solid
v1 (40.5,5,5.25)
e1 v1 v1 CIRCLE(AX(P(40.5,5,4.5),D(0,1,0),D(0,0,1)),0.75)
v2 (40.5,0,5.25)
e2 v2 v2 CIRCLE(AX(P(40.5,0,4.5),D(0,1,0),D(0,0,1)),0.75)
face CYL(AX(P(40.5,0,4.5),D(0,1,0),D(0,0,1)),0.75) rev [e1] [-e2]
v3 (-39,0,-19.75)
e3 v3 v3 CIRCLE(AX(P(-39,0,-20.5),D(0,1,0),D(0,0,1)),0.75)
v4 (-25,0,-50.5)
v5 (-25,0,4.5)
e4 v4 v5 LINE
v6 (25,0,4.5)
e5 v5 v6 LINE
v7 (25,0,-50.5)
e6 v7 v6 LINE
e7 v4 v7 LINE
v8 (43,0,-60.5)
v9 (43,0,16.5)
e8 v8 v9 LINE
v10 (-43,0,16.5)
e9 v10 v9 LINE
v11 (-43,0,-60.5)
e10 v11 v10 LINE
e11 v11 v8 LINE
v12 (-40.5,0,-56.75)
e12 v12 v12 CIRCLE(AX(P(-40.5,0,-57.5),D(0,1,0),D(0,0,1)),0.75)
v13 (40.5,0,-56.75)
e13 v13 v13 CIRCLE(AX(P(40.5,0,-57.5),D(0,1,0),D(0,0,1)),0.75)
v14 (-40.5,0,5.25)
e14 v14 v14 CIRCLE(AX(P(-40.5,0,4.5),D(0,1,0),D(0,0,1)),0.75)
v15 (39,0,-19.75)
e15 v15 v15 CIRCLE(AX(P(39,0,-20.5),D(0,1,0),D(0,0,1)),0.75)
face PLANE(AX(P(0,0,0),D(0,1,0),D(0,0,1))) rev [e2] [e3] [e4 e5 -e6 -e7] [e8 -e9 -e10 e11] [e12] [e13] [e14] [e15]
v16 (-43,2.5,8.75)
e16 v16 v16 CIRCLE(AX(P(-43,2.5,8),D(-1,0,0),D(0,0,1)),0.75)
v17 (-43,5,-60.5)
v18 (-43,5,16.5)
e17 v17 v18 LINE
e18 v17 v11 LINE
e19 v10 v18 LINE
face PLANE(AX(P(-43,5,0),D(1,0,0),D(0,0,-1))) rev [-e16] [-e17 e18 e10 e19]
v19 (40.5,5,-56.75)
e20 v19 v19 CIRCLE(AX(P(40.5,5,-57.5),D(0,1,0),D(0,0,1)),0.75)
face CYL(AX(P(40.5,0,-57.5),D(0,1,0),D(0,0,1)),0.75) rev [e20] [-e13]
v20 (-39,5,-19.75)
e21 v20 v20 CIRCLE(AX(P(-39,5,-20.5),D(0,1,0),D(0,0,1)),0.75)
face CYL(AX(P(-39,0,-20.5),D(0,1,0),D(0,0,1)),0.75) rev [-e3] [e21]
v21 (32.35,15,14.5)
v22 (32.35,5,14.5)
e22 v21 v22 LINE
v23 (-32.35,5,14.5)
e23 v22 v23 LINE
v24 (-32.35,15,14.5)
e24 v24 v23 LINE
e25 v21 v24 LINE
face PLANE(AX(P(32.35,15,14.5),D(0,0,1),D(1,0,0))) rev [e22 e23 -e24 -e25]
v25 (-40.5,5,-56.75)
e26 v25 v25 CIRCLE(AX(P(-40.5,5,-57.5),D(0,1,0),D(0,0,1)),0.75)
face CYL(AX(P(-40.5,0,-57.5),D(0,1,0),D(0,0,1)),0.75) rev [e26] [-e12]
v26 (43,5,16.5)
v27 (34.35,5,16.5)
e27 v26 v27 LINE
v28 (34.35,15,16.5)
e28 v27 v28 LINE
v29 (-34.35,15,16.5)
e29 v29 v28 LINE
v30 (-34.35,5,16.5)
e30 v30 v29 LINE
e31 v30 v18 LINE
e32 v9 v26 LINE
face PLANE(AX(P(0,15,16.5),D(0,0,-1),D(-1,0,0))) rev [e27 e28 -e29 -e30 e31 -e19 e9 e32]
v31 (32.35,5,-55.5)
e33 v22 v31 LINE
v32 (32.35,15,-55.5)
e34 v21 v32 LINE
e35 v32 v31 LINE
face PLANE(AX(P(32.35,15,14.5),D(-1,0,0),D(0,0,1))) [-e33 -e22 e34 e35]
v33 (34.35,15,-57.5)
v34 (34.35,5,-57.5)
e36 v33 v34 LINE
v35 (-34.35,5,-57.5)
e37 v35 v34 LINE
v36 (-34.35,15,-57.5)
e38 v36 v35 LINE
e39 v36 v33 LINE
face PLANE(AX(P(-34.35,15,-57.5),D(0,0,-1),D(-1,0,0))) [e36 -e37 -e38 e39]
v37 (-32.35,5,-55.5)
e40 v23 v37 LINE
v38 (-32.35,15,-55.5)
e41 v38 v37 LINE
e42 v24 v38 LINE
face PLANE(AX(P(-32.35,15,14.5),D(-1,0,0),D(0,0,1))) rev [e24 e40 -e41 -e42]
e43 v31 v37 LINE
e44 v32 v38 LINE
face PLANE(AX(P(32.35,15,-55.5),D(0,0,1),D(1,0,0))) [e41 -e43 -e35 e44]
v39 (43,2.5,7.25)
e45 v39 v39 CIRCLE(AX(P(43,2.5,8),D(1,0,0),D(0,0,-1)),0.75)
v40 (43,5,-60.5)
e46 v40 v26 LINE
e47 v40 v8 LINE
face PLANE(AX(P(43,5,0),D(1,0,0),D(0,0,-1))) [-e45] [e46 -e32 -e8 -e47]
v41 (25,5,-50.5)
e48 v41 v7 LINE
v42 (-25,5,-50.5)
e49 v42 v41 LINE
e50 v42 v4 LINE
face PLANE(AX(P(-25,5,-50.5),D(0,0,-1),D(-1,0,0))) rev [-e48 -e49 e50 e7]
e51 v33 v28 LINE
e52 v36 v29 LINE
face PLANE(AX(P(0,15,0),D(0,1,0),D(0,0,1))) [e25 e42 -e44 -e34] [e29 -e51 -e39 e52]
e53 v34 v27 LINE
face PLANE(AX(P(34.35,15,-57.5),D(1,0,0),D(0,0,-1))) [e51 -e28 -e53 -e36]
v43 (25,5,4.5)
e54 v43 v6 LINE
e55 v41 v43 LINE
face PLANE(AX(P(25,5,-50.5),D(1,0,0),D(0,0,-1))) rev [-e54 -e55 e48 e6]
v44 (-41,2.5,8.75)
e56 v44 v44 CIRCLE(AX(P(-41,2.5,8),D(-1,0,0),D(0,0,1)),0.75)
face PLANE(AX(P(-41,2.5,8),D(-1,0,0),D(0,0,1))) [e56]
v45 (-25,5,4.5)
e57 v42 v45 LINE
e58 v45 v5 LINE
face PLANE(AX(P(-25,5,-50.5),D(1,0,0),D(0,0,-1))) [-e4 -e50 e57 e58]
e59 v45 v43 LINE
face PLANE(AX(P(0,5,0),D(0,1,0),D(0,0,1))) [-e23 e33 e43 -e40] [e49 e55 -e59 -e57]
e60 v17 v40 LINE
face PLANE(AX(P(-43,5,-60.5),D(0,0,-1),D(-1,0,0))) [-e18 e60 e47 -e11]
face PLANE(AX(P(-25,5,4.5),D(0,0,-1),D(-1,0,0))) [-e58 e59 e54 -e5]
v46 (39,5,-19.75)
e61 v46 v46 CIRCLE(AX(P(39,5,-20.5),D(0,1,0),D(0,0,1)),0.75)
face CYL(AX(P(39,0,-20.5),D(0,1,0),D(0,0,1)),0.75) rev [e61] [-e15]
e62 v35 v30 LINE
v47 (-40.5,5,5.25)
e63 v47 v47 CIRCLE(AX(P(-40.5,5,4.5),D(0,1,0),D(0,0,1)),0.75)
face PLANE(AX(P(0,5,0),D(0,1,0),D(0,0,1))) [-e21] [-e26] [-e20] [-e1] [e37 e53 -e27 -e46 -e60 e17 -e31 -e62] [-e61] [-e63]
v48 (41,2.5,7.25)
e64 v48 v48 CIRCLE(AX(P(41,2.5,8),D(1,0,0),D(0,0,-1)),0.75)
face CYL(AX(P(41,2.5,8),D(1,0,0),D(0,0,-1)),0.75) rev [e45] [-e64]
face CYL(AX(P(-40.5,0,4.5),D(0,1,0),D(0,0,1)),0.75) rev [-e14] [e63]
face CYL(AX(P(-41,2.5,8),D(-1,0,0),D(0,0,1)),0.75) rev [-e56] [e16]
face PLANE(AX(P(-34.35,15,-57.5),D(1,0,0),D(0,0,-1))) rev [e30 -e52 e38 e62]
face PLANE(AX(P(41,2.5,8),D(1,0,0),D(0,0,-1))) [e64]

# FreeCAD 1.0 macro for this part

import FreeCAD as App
import Part
import Sketcher
from FreeCAD import Vector


def add_polygon(sketch, points):
    """Adds a closed chain of lines whose ends are joined by coincident constraints."""
    first, n = sketch.GeometryCount, len(points)
    for a, b in zip(points, points[1:] + points[:1]):
        sketch.addGeometry(Part.LineSegment(App.Vector(*a, 0), App.Vector(*b, 0)), False)
    for i in range(n):
        sketch.addConstraint(Sketcher.Constraint("Coincident", first + i, 2, first + (i + 1) % n, 1))

doc = App.newDocument("Part")
body = doc.addObject("PartDesign::Body", "Body")

# Sketch on XZ plane
sketch1 = body.newObject("Sketcher::SketchObject", "Sketch")
sketch1.AttachmentSupport = (doc.getObject("XZ_Plane"), [""])
sketch1.MapMode = "FlatFace"
add_polygon(sketch1, [(-43, -60), (-43, 114), (43, 114), (43, -60)])  # lines 0-3
add_polygon(sketch1, [(38, 108), (-38, 108), (-38, 66), (38, 66)])  # lines 4-7
add_polygon(sketch1, [(25, 50), (-25, 50), (-25, 26), (25, 26)])  # lines 8-11
add_polygon(sketch1, [(25, 4), (-25, 4), (-25, -50), (25, -50)])  # lines 12-15
sketch1.addConstraint([
    Sketcher.Constraint("Vertical", 0),
    Sketcher.Constraint("Horizontal", 1),
    Sketcher.Constraint("Vertical", 2),
    Sketcher.Constraint("Horizontal", 3),
    Sketcher.Constraint("Horizontal", 4),
    Sketcher.Constraint("Vertical", 5),
    Sketcher.Constraint("Horizontal", 6),
    Sketcher.Constraint("Vertical", 7),
    Sketcher.Constraint("Horizontal", 8),
    Sketcher.Constraint("Vertical", 9),
    Sketcher.Constraint("Horizontal", 10),
    Sketcher.Constraint("Vertical", 11),
    Sketcher.Constraint("Horizontal", 12),
    Sketcher.Constraint("Vertical", 13),
    Sketcher.Constraint("Horizontal", 14),
    Sketcher.Constraint("Vertical", 15),
    Sketcher.Constraint("Symmetric", 11, 2, 13, 2, -1, 1),
    Sketcher.Constraint("Vertical", 9, 2, 12, 2),
    Sketcher.Constraint("Vertical", 11, 2, 14, 2),
    Sketcher.Constraint("DistanceX", 1, 1, 1, 2, 86.0),
    Sketcher.Constraint("DistanceX", 4, 2, 4, 1, 76.0),
    Sketcher.Constraint("DistanceX", 8, 2, 8, 1, 50.0),
    Sketcher.Constraint("DistanceY", 0, 1, 0, 2, 174.0),
    Sketcher.Constraint("DistanceY", 5, 2, 5, 1, 43.0),
    Sketcher.Constraint("DistanceY", 9, 2, 9, 1, 25.0),
    Sketcher.Constraint("DistanceY", 13, 2, 13, 1, 55.0),
    Sketcher.Constraint("DistanceX", 0, 2, -1, 1, 43.0),
    Sketcher.Constraint("DistanceX", 4, 2, -1, 1, 38.0),
    Sketcher.Constraint("DistanceY", 4, 2, 0, 2, 5.0),
    Sketcher.Constraint("DistanceY", 8, 2, 5, 2, 15.0),
    Sketcher.Constraint("DistanceY", 12, 2, 9, 2, 21.0),
])
pad1 = body.newObject("PartDesign::Pad", "Pad")
pad1.Profile = sketch1
pad1.Length = 5
pad1.Reversed = True

# Sketch on XZ plane
sketch2 = body.newObject("Sketcher::SketchObject", "Sketch001")
sketch2.AttachmentSupport = (doc.getObject("XZ_Plane"), [""])
sketch2.MapMode = "FlatFace"
sketch2.AttachmentOffset = App.Placement(Vector(0, 0, -5), App.Rotation())
add_polygon(sketch2, [(-34, -58), (-34, 58), (34, 58), (34, -58)])  # lines 0-3
add_polygon(sketch2, [(32, 56), (-32, 56), (-32, 18), (32, 18)])  # lines 4-7
add_polygon(sketch2, [(32, 14), (-32, 14), (-32, -56), (32, -56)])  # lines 8-11
sketch2.addConstraint([
    Sketcher.Constraint("Vertical", 0),
    Sketcher.Constraint("Horizontal", 1),
    Sketcher.Constraint("Vertical", 2),
    Sketcher.Constraint("Horizontal", 3),
    Sketcher.Constraint("Horizontal", 4),
    Sketcher.Constraint("Vertical", 5),
    Sketcher.Constraint("Horizontal", 6),
    Sketcher.Constraint("Vertical", 7),
    Sketcher.Constraint("Horizontal", 8),
    Sketcher.Constraint("Vertical", 9),
    Sketcher.Constraint("Horizontal", 10),
    Sketcher.Constraint("Vertical", 11),
    Sketcher.Constraint("Symmetric", 0, 2, 2, 2, -1, 1),
    Sketcher.Constraint("Symmetric", 7, 2, 9, 2, -1, 1),
    Sketcher.Constraint("Vertical", 5, 2, 8, 2),
    Sketcher.Constraint("Vertical", 7, 2, 10, 2),
    Sketcher.Constraint("DistanceY", 0, 1, 0, 2, 115.0),
    Sketcher.Constraint("DistanceY", 5, 2, 5, 1, 37.0),
    Sketcher.Constraint("DistanceY", 9, 2, 9, 1, 70.0),
    Sketcher.Constraint("DistanceX", 1, 1, 1, 2, 68.7),
    Sketcher.Constraint("DistanceX", 4, 2, 4, 1, 64.7),
    Sketcher.Constraint("DistanceY", 4, 2, 0, 2, 2.0),
])
pad2 = body.newObject("PartDesign::Pad", "Pad001")
pad2.Profile = sketch2
pad2.Length = 10
pad2.Reversed = True

# Sketch on XZ plane
sketch3 = body.newObject("Sketcher::SketchObject", "Sketch002")
sketch3.AttachmentSupport = (doc.getObject("XZ_Plane"), [""])
sketch3.MapMode = "FlatFace"
sketch3.AttachmentOffset = App.Placement(Vector(0, 0, -5), App.Rotation())
sketch3.addGeometry([
    Part.Circle(Vector(-39, -20.5, 0), Vector(0, 0, 1), 0.8),  # 0
    Part.Circle(Vector(39, -20.5, 0), Vector(0, 0, 1), 0.8),  # 1
    Part.Circle(Vector(-39, 32.5, 0), Vector(0, 0, 1), 0.8),  # 2
    Part.Circle(Vector(39, 32.5, 0), Vector(0, 0, 1), 0.8),  # 3
    Part.Circle(Vector(-40.1, 60.4, 0), Vector(0, 0, 1), 0.8),  # 4
    Part.Circle(Vector(40.1, 60.4, 0), Vector(0, 0, 1), 0.8),  # 5
    Part.Circle(Vector(-40.1, 110.5, 0), Vector(0, 0, 1), 0.8),  # 6
    Part.Circle(Vector(40.1, 110.5, 0), Vector(0, 0, 1), 0.8),  # 7
    Part.Circle(Vector(-40.5, -57.5, 0), Vector(0, 0, 1), 0.8),  # 8
    Part.Circle(Vector(-40.5, 38, 0), Vector(0, 0, 1), 0.8),  # 9
    Part.Circle(Vector(-40.5, 85.5, 0), Vector(0, 0, 1), 0.8),  # 10
    Part.Circle(Vector(40.5, -57.5, 0), Vector(0, 0, 1), 0.8),  # 11
    Part.Circle(Vector(40.5, 38, 0), Vector(0, 0, 1), 0.8),  # 12
    Part.Circle(Vector(40.5, 85.5, 0), Vector(0, 0, 1), 0.8),  # 13
    Part.Circle(Vector(-40.5, 4.5, 0), Vector(0, 0, 1), 0.8),  # 14
    Part.Circle(Vector(40.5, 4.5, 0), Vector(0, 0, 1), 0.8),  # 15
], False)
sketch3.addConstraint([
    Sketcher.Constraint("Equal", 0, 1),
    Sketcher.Constraint("Equal", 1, 2),
    Sketcher.Constraint("Equal", 2, 3),
    Sketcher.Constraint("Equal", 3, 4),
    Sketcher.Constraint("Equal", 4, 5),
    Sketcher.Constraint("Equal", 5, 6),
    Sketcher.Constraint("Equal", 6, 7),
    Sketcher.Constraint("Equal", 7, 8),
    Sketcher.Constraint("Equal", 8, 9),
    Sketcher.Constraint("Equal", 9, 10),
    Sketcher.Constraint("Equal", 10, 11),
    Sketcher.Constraint("Equal", 11, 12),
    Sketcher.Constraint("Equal", 12, 13),
    Sketcher.Constraint("Equal", 13, 14),
    Sketcher.Constraint("Equal", 14, 15),
    Sketcher.Constraint("Symmetric", 0, 3, 1, 3, -2),
    Sketcher.Constraint("Symmetric", 2, 3, 3, 3, -2),
    Sketcher.Constraint("Symmetric", 4, 3, 5, 3, -2),
    Sketcher.Constraint("Symmetric", 6, 3, 7, 3, -2),
    Sketcher.Constraint("Symmetric", 8, 3, 11, 3, -2),
    Sketcher.Constraint("Symmetric", 9, 3, 12, 3, -2),
    Sketcher.Constraint("Symmetric", 10, 3, 13, 3, -2),
    Sketcher.Constraint("Symmetric", 14, 3, 15, 3, -2),
    Sketcher.Constraint("Vertical", 0, 3, 2, 3),
    Sketcher.Constraint("Vertical", 4, 3, 6, 3),
    Sketcher.Constraint("Vertical", 8, 3, 9, 3),
    Sketcher.Constraint("Vertical", 9, 3, 10, 3),
    Sketcher.Constraint("Vertical", 10, 3, 14, 3),
    Sketcher.Constraint("Diameter", 0, 1.5),
    Sketcher.Constraint("DistanceX", 0, 3, -1, 1, 39.0),
    Sketcher.Constraint("DistanceY", -1, 1, 9, 3, 38.0),
    Sketcher.Constraint("DistanceY", 0, 3, 2, 3, 53.0),
    Sketcher.Constraint("DistanceY", 8, 3, 0, 3, 37.0),
    Sketcher.Constraint("DistanceY", 2, 3, 10, 3, 53.0),
    Sketcher.Constraint("DistanceX", 8, 3, 11, 3, 81.0),
    Sketcher.Constraint("DistanceY", 0, 3, 14, 3, 25.0),
    Sketcher.Constraint("DistanceY", 0, 3, -1, 1, 20.5),
    Sketcher.Constraint("DistanceY", -1, 1, 4, 3, 60.35),
    Sketcher.Constraint("DistanceY", -1, 1, 6, 3, 110.5303),
    Sketcher.Constraint("DistanceX", 4, 3, -1, 1, 40.142778),
])
pocket1 = body.newObject("PartDesign::Pocket", "Pocket")
pocket1.Profile = sketch3
pocket1.Type = "ThroughAll"
pocket1.Reversed = True

# Sketch on XZ plane
sketch4 = body.newObject("Sketcher::SketchObject", "Sketch003")
sketch4.AttachmentSupport = (doc.getObject("XZ_Plane"), [""])
sketch4.MapMode = "FlatFace"
sketch4.AttachmentOffset = App.Placement(Vector(0, 0, -5), App.Rotation())
add_polygon(sketch4, [(-32, 58), (-32, 66), (-17, 66), (-17, 58)])  # lines 0-3
add_polygon(sketch4, [(-13, 58), (-13, 66), (13, 66), (13, 58)])  # lines 4-7
add_polygon(sketch4, [(-43, 74), (-43, 84), (-38, 84), (-38, 74)])  # lines 8-11
add_polygon(sketch4, [(-43, 95), (-43, 108), (-38, 108), (-38, 95)])  # lines 12-15
add_polygon(sketch4, [(-35, 108), (-35, 114), (-29, 114), (-29, 108)])  # lines 16-19
add_polygon(sketch4, [(-6, 108), (-6, 114), (0, 114), (0, 108)])  # lines 20-23
add_polygon(sketch4, [(14, 108), (14, 114), (21, 114), (21, 108)])  # lines 24-27
add_polygon(sketch4, [(27, 108), (27, 114), (34, 114), (34, 108)])  # lines 28-31
add_polygon(sketch4, [(38, 82), (38, 102), (43, 102), (43, 82)])  # lines 32-35
sketch4.addConstraint([
    Sketcher.Constraint("Vertical", 0),
    Sketcher.Constraint("Horizontal", 1),
    Sketcher.Constraint("Vertical", 2),
    Sketcher.Constraint("Horizontal", 3),
    Sketcher.Constraint("Vertical", 4),
    Sketcher.Constraint("Horizontal", 5),
    Sketcher.Constraint("Vertical", 6),
    Sketcher.Constraint("Horizontal", 7),
    Sketcher.Constraint("Vertical", 8),
    Sketcher.Constraint("Horizontal", 9),
    Sketcher.Constraint("Vertical", 10),
    Sketcher.Constraint("Horizontal", 11),
    Sketcher.Constraint("Vertical", 12),
    Sketcher.Constraint("Horizontal", 13),
    Sketcher.Constraint("Vertical", 14),
    Sketcher.Constraint("Horizontal", 15),
    Sketcher.Constraint("Vertical", 16),
    Sketcher.Constraint("Horizontal", 17),
    Sketcher.Constraint("Vertical", 18),
    Sketcher.Constraint("Horizontal", 19),
    Sketcher.Constraint("Vertical", 20),
    Sketcher.Constraint("Horizontal", 21),
    Sketcher.Constraint("Vertical", 22),
    Sketcher.Constraint("Horizontal", 23),
    Sketcher.Constraint("Vertical", 24),
    Sketcher.Constraint("Horizontal", 25),
    Sketcher.Constraint("Vertical", 26),
    Sketcher.Constraint("Horizontal", 27),
    Sketcher.Constraint("Vertical", 28),
    Sketcher.Constraint("Horizontal", 29),
    Sketcher.Constraint("Vertical", 30),
    Sketcher.Constraint("Horizontal", 31),
    Sketcher.Constraint("Vertical", 32),
    Sketcher.Constraint("Horizontal", 33),
    Sketcher.Constraint("Vertical", 34),
    Sketcher.Constraint("Horizontal", 35),
    Sketcher.Constraint("PointOnObject", 21, 2, -2),
    Sketcher.Constraint("Horizontal", 1, 2, 4, 2),
    Sketcher.Constraint("Horizontal", 3, 2, 6, 2),
    Sketcher.Constraint("Horizontal", 17, 2, 20, 2),
    Sketcher.Constraint("Horizontal", 19, 2, 22, 2),
    Sketcher.Constraint("Horizontal", 21, 2, 24, 2),
    Sketcher.Constraint("Horizontal", 23, 2, 26, 2),
    Sketcher.Constraint("Horizontal", 25, 2, 28, 2),
    Sketcher.Constraint("Horizontal", 27, 2, 30, 2),
    Sketcher.Constraint("Vertical", 11, 2, 12, 2),
    Sketcher.Constraint("Vertical", 10, 2, 13, 2),
    Sketcher.Constraint("Equal", 19, 21),
    Sketcher.Constraint("Equal", 27, 29),
    Sketcher.Constraint("Equal", 15, 33),
    Sketcher.Constraint("Equal", 35, 16),
    Sketcher.Constraint("DistanceX", 1, 1, 1, 2, 15.0),
    Sketcher.Constraint("DistanceX", 5, 1, 5, 2, 26.0),
    Sketcher.Constraint("DistanceX", 9, 1, 9, 2, 5.0),
    Sketcher.Constraint("DistanceX", 17, 1, 17, 2, 6.0),
    Sketcher.Constraint("DistanceX", 25, 1, 25, 2, 7.0),
    Sketcher.Constraint("DistanceY", 0, 1, 0, 2, 8.0),
    Sketcher.Constraint("DistanceY", 8, 1, 8, 2, 10.0),
    Sketcher.Constraint("DistanceY", 32, 1, 32, 2, 21.0),
    Sketcher.Constraint("DistanceX", 0, 2, -1, 1, 32.0),
    Sketcher.Constraint("DistanceX", 4, 2, -1, 1, 13.0),
    Sketcher.Constraint("DistanceX", 8, 2, -1, 1, 43.0),
    Sketcher.Constraint("DistanceX", 16, 2, -1, 1, 35.0),
    Sketcher.Constraint("DistanceX", -1, 1, 24, 2, 14.0),
    Sketcher.Constraint("DistanceX", -1, 1, 28, 2, 27.0),
    Sketcher.Constraint("DistanceX", -1, 1, 32, 2, 38.0),
    Sketcher.Constraint("DistanceY", 0, 2, 8, 2, 18.0),
    Sketcher.Constraint("DistanceY", 8, 2, 12, 2, 24.0),
    Sketcher.Constraint("DistanceY", 13, 2, 16, 2, 6.0),
    Sketcher.Constraint("DistanceY", 32, 2, 30, 2, 6.0),
    Sketcher.Constraint("DistanceY", -1, 1, 0, 2, 65.5),
    Sketcher.Constraint("DistanceY", 12, 1, 12, 2, 12.1197),
])
pocket2 = body.newObject("PartDesign::Pocket", "Pocket001")
pocket2.Profile = sketch4
pocket2.Length = 2
pocket2.Reversed = True

# Sketch on YZ plane
sketch5 = body.newObject("Sketcher::SketchObject", "Sketch004")
sketch5.AttachmentSupport = (doc.getObject("YZ_Plane"), [""])
sketch5.MapMode = "FlatFace"
sketch5.AttachmentOffset = App.Placement(Vector(0, 0, -43), App.Rotation())
sketch5.addGeometry([
    Part.Circle(Vector(2.5, 8, 0), Vector(0, 0, 1), 0.8),
    Part.Circle(Vector(2.5, 23, 0), Vector(0, 0, 1), 0.8),
    Part.Circle(Vector(2.5, 52, 0), Vector(0, 0, 1), 0.8),
    Part.Circle(Vector(2.5, 63, 0), Vector(0, 0, 1), 0.8),
], False)
sketch5.addConstraint([
    Sketcher.Constraint("Equal", 0, 1),
    Sketcher.Constraint("Equal", 1, 2),
    Sketcher.Constraint("Equal", 2, 3),
    Sketcher.Constraint("Vertical", 0, 3, 1, 3),
    Sketcher.Constraint("Vertical", 1, 3, 2, 3),
    Sketcher.Constraint("Vertical", 2, 3, 3, 3),
    Sketcher.Constraint("Diameter", 0, 1.5),
    Sketcher.Constraint("DistanceY", -1, 1, 0, 3, 8.0),
    Sketcher.Constraint("DistanceY", -1, 1, 1, 3, 23.0),
    Sketcher.Constraint("DistanceY", -1, 1, 2, 3, 52.0),
    Sketcher.Constraint("DistanceY", -1, 1, 3, 3, 63.0),
    Sketcher.Constraint("DistanceX", -1, 1, 0, 3, 2.5),
])
pocket3 = body.newObject("PartDesign::Pocket", "Pocket002")
pocket3.Profile = sketch5
pocket3.Length = 2
pocket3.Reversed = True

# Sketch on YZ plane
sketch6 = body.newObject("Sketcher::SketchObject", "Sketch005")
sketch6.AttachmentSupport = (doc.getObject("YZ_Plane"), [""])
sketch6.MapMode = "FlatFace"
sketch6.AttachmentOffset = App.Placement(Vector(0, 0, 41), App.Rotation())
sketch6.addGeometry([
    Part.Circle(Vector(2.5, 8, 0), Vector(0, 0, 1), 0.8),
    Part.Circle(Vector(2.5, 23, 0), Vector(0, 0, 1), 0.8),
    Part.Circle(Vector(2.5, 52, 0), Vector(0, 0, 1), 0.8),
    Part.Circle(Vector(2.5, 63, 0), Vector(0, 0, 1), 0.8),
], False)
sketch6.addConstraint([
    Sketcher.Constraint("Equal", 0, 1),
    Sketcher.Constraint("Equal", 1, 2),
    Sketcher.Constraint("Equal", 2, 3),
    Sketcher.Constraint("Vertical", 0, 3, 1, 3),
    Sketcher.Constraint("Vertical", 1, 3, 2, 3),
    Sketcher.Constraint("Vertical", 2, 3, 3, 3),
    Sketcher.Constraint("Diameter", 0, 1.5),
    Sketcher.Constraint("DistanceY", -1, 1, 0, 3, 8.0),
    Sketcher.Constraint("DistanceY", -1, 1, 1, 3, 23.0),
    Sketcher.Constraint("DistanceY", -1, 1, 2, 3, 52.0),
    Sketcher.Constraint("DistanceY", -1, 1, 3, 3, 63.0),
    Sketcher.Constraint("DistanceX", -1, 1, 0, 3, 2.5),
])
pocket4 = body.newObject("PartDesign::Pocket", "Pocket003")
pocket4.Profile = sketch6
pocket4.Length = 2
pocket4.Reversed = True

# Sketch on XZ plane
sketch7 = body.newObject("Sketcher::SketchObject", "Sketch006")
sketch7.AttachmentSupport = (doc.getObject("XZ_Plane"), [""])
sketch7.MapMode = "FlatFace"
add_polygon(sketch7, [(-43, 16.5), (-43, 113.5), (43, 113.5), (43, 16.5)])  # lines 0-3
sketch7.addGeometry(Part.Circle(Vector(-40.1, 110.5, 0), Vector(0, 0, 1), 0.8), False)  # 4
sketch7.addGeometry(Part.Circle(Vector(-40.5, 85.5, 0), Vector(0, 0, 1), 0.8), False)  # 5
sketch7.addGeometry(Part.Circle(Vector(40.1, 110.5, 0), Vector(0, 0, 1), 0.8), False)  # 6
add_polygon(sketch7, [(38, 108.5), (-38, 108.5), (-38, 65.5), (38, 65.5)])  # lines 7-10
sketch7.addGeometry(Part.Circle(Vector(40.5, 85.5, 0), Vector(0, 0, 1), 0.8), False)  # 11
sketch7.addGeometry(Part.Circle(Vector(-40.1, 60.4, 0), Vector(0, 0, 1), 0.8), False)  # 12
sketch7.addGeometry(Part.Circle(Vector(-40.5, 38, 0), Vector(0, 0, 1), 0.8), False)  # 13
sketch7.addGeometry(Part.Circle(Vector(-39, 32.5, 0), Vector(0, 0, 1), 0.8), False)  # 14
sketch7.addGeometry(Part.Circle(Vector(40.1, 60.4, 0), Vector(0, 0, 1), 0.8), False)  # 15
add_polygon(sketch7, [(25, 50.5), (-25, 50.5), (-25, 25.5), (25, 25.5)])  # lines 16-19
sketch7.addGeometry(Part.Circle(Vector(40.5, 38, 0), Vector(0, 0, 1), 0.8), False)  # 20
sketch7.addGeometry(Part.Circle(Vector(39, 32.5, 0), Vector(0, 0, 1), 0.8), False)  # 21
sketch7.addConstraint([
    Sketcher.Constraint("Vertical", 0),
    Sketcher.Constraint("Horizontal", 1),
    Sketcher.Constraint("Vertical", 2),
    Sketcher.Constraint("Horizontal", 3),
    Sketcher.Constraint("Horizontal", 7),
    Sketcher.Constraint("Vertical", 8),
    Sketcher.Constraint("Horizontal", 9),
    Sketcher.Constraint("Vertical", 10),
    Sketcher.Constraint("Horizontal", 16),
    Sketcher.Constraint("Vertical", 17),
    Sketcher.Constraint("Horizontal", 18),
    Sketcher.Constraint("Vertical", 19),
    Sketcher.Constraint("Equal", 4, 5),
    Sketcher.Constraint("Equal", 5, 6),
    Sketcher.Constraint("Equal", 6, 11),
    Sketcher.Constraint("Equal", 11, 12),
    Sketcher.Constraint("Equal", 12, 13),
    Sketcher.Constraint("Equal", 13, 14),
    Sketcher.Constraint("Equal", 14, 15),
    Sketcher.Constraint("Equal", 15, 20),
    Sketcher.Constraint("Equal", 20, 21),
    Sketcher.Constraint("Symmetric", 4, 3, 6, 3, -2),
    Sketcher.Constraint("Symmetric", 5, 3, 11, 3, -2),
    Sketcher.Constraint("Symmetric", 12, 3, 15, 3, -2),
    Sketcher.Constraint("Symmetric", 13, 3, 20, 3, -2),
    Sketcher.Constraint("Symmetric", 14, 3, 21, 3, -2),
    Sketcher.Constraint("Vertical", 4, 3, 12, 3),
    Sketcher.Constraint("Vertical", 5, 3, 13, 3),
    Sketcher.Constraint("Diameter", 4, 1.5),
    Sketcher.Constraint("DistanceX", 1, 1, 1, 2, 86.0),
    Sketcher.Constraint("DistanceX", 7, 2, 7, 1, 76.0),
    Sketcher.Constraint("DistanceX", 16, 2, 16, 1, 50.0),
    Sketcher.Constraint("DistanceY", 0, 1, 0, 2, 97.0),
    Sketcher.Constraint("DistanceY", 8, 2, 8, 1, 43.0),
    Sketcher.Constraint("DistanceY", 17, 2, 17, 1, 25.0),
    Sketcher.Constraint("DistanceY", -1, 1, 13, 3, 38.0),
    Sketcher.Constraint("DistanceX", 14, 3, -1, 1, 39.0),
    Sketcher.Constraint("DistanceX", 0, 2, -1, 1, 43.0),
    Sketcher.Constraint("DistanceX", 7, 2, -1, 1, 38.0),
    Sketcher.Constraint("DistanceX", 16, 2, -1, 1, 25.0),
    Sketcher.Constraint("DistanceX", 5, 3, 11, 3, 81.0),
    Sketcher.Constraint("DistanceY", 14, 3, 5, 3, 53.0),
    Sketcher.Constraint("DistanceY", 5, 3, 0, 2, 28.0),
    Sketcher.Constraint("DistanceY", 7, 2, 0, 2, 5.0),
    Sketcher.Constraint("DistanceY", 16, 2, 8, 2, 15.0),
    Sketcher.Constraint("DistanceY", -1, 1, 5, 3, 85.5),
    Sketcher.Constraint("DistanceY", -1, 1, 12, 3, 60.35),
    Sketcher.Constraint("DistanceY", -1, 1, 4, 3, 110.5303),
    Sketcher.Constraint("DistanceX", 4, 3, -1, 1, 40.142778),
])
pocket5 = body.newObject("PartDesign::Pocket", "Pocket004")
pocket5.Profile = sketch7
pocket5.Type = "ThroughAll"

doc.recompute()
